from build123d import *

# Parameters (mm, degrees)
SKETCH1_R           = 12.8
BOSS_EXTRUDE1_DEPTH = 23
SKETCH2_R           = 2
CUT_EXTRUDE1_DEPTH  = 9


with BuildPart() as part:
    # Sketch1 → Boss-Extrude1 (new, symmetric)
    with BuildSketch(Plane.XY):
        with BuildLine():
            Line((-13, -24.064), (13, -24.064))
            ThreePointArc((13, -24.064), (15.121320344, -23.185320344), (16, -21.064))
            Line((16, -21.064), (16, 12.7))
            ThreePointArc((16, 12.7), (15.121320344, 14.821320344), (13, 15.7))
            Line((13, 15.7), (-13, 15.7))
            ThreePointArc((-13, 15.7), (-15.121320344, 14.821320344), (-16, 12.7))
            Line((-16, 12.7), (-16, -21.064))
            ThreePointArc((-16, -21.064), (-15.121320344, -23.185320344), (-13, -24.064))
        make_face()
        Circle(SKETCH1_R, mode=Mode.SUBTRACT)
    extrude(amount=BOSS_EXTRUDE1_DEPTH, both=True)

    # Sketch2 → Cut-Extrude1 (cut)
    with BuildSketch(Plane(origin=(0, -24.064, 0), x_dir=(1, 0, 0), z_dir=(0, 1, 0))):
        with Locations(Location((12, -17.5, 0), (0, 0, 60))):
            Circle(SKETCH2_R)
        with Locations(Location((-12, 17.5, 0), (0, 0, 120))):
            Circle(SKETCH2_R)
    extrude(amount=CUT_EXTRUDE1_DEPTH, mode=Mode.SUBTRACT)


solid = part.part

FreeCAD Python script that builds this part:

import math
import FreeCAD as App
import Part
import Sketcher

V = App.Vector
Q = App.Units.Quantity

doc = App.newDocument("Part")
params = doc.addObject("Spreadsheet::Sheet", "Params")
for row, (alias, value) in enumerate([
    ("sketch1_radius", "3 mm"),
    ("sketch1_diameter", "25.6 mm"),
    ("sketch1_width", "26 mm"),
    ("pad1_length", "46 mm"),
    ("sketch2_diameter", "4 mm"),
    ("pocket1_length", "9 mm"),
], start=1):
    params.set(f"A{row}", alias)
    params.set(f"B{row}", "=" + value)
    params.setAlias(f"B{row}", alias)

body = doc.addObject("PartDesign::Body", "Body")

# Sketch on XY plane
sketch1 = body.newObject("Sketcher::SketchObject", "Sketch")
sketch1.AttachmentSupport = (doc.getObject("XY_Plane"), [""])
sketch1.MapMode = "FlatFace"
sketch1.addGeometry(Part.LineSegment(V(-13, -24.1, 0), V(13, -24.1, 0)), False)
sketch1.addGeometry(Part.ArcOfCircle(Part.Circle(V(13, -21.1, 0), V(0, 0, 1), 3), math.radians(-90), math.radians(0)), False)
sketch1.addGeometry(Part.LineSegment(V(16, -21.1, 0), V(16, 12.7, 0)), False)
sketch1.addGeometry(Part.ArcOfCircle(Part.Circle(V(13, 12.7, 0), V(0, 0, 1), 3), math.radians(0), math.radians(90)), False)
sketch1.addGeometry(Part.LineSegment(V(13, 15.7, 0), V(-13, 15.7, 0)), False)
sketch1.addGeometry(Part.ArcOfCircle(Part.Circle(V(-13, 12.7, 0), V(0, 0, 1), 3), math.radians(90), math.radians(180)), False)
sketch1.addGeometry(Part.LineSegment(V(-16, 12.7, 0), V(-16, -21.1, 0)), False)
sketch1.addGeometry(Part.ArcOfCircle(Part.Circle(V(-13, -21.1, 0), V(0, 0, 1), 3), math.radians(180), math.radians(270)), False)
sketch1.addGeometry(Part.Circle(V(0, 0, 0), V(0, 0, 1), 12.8), False)
sketch1.addConstraint(Sketcher.Constraint("Tangent", 0, 2, 1, 1))
sketch1.addConstraint(Sketcher.Constraint("Tangent", 1, 2, 2, 1))
sketch1.addConstraint(Sketcher.Constraint("Tangent", 2, 2, 3, 1))
sketch1.addConstraint(Sketcher.Constraint("Tangent", 3, 2, 4, 1))
sketch1.addConstraint(Sketcher.Constraint("Tangent", 4, 2, 5, 1))
sketch1.addConstraint(Sketcher.Constraint("Tangent", 5, 2, 6, 1))
sketch1.addConstraint(Sketcher.Constraint("Tangent", 6, 2, 7, 1))
sketch1.addConstraint(Sketcher.Constraint("Tangent", 7, 2, 0, 1))
sketch1.addConstraint(Sketcher.Constraint("Horizontal", 0))
sketch1.addConstraint(Sketcher.Constraint("Vertical", 2))
sketch1.addConstraint(Sketcher.Constraint("Horizontal", 4))
sketch1.addConstraint(Sketcher.Constraint("Vertical", 6))
sketch1.addConstraint(Sketcher.Constraint("Coincident", 8, 3, -1, 1))
sketch1.addConstraint(Sketcher.Constraint("Equal", 1, 3))
sketch1.addConstraint(Sketcher.Constraint("Equal", 3, 5))
sketch1.addConstraint(Sketcher.Constraint("Equal", 5, 7))
sketch1.addConstraint(Sketcher.Constraint("Radius", 1, Q("3 mm")))
sketch1.addConstraint(Sketcher.Constraint("Diameter", 8, Q("25.6 mm")))
sketch1.addConstraint(Sketcher.Constraint("DistanceX", 0, 1, 0, 2, Q("26 mm")))
sketch1.addConstraint(Sketcher.Constraint("DistanceX", -1, 1, 1, 3, Q("13 mm")))
sketch1.addConstraint(Sketcher.Constraint("DistanceY", -1, 1, 3, 3, Q("12.7 mm")))
sketch1.addConstraint(Sketcher.Constraint("DistanceY", 2, 1, 2, 2, Q("33.764 mm")))
sketch1.setExpression("Constraints[16]", "Params.sketch1_radius")
sketch1.setExpression("Constraints[17]", "Params.sketch1_diameter")
sketch1.setExpression("Constraints[18]", "Params.sketch1_width")
pad1 = body.newObject("PartDesign::Pad", "Pad")
pad1.Profile = sketch1
pad1.setExpression("Length", "Params.pad1_length")
pad1.Midplane = True

# Sketch on XZ plane
sketch2 = body.newObject("Sketcher::SketchObject", "Sketch001")
sketch2.AttachmentSupport = (doc.getObject("XZ_Plane"), [""])
sketch2.MapMode = "FlatFace"
sketch2.AttachmentOffset = App.Placement(V(0, 0, 24.064), App.Rotation())
sketch2.addGeometry(Part.Circle(V(12, 17.5, 0), V(0, 0, 1), 2), False)
sketch2.addGeometry(Part.Circle(V(-12, -17.5, 0), V(0, 0, 1), 2), False)
sketch2.addConstraint(Sketcher.Constraint("Equal", 0, 1))
sketch2.addConstraint(Sketcher.Constraint("Symmetric", 0, 3, 1, 3, -1, 1))
sketch2.addConstraint(Sketcher.Constraint("Diameter", 0, Q("4 mm")))
sketch2.addConstraint(Sketcher.Constraint("DistanceX", -1, 1, 0, 3, Q("12 mm")))
sketch2.addConstraint(Sketcher.Constraint("DistanceY", 1, 3, 0, 3, Q("35 mm")))
sketch2.setExpression("Constraints[2]", "Params.sketch2_diameter")
pocket1 = body.newObject("PartDesign::Pocket", "Pocket")
pocket1.Profile = sketch2
pocket1.setExpression("Length", "Params.pocket1_length")

doc.recompute()
